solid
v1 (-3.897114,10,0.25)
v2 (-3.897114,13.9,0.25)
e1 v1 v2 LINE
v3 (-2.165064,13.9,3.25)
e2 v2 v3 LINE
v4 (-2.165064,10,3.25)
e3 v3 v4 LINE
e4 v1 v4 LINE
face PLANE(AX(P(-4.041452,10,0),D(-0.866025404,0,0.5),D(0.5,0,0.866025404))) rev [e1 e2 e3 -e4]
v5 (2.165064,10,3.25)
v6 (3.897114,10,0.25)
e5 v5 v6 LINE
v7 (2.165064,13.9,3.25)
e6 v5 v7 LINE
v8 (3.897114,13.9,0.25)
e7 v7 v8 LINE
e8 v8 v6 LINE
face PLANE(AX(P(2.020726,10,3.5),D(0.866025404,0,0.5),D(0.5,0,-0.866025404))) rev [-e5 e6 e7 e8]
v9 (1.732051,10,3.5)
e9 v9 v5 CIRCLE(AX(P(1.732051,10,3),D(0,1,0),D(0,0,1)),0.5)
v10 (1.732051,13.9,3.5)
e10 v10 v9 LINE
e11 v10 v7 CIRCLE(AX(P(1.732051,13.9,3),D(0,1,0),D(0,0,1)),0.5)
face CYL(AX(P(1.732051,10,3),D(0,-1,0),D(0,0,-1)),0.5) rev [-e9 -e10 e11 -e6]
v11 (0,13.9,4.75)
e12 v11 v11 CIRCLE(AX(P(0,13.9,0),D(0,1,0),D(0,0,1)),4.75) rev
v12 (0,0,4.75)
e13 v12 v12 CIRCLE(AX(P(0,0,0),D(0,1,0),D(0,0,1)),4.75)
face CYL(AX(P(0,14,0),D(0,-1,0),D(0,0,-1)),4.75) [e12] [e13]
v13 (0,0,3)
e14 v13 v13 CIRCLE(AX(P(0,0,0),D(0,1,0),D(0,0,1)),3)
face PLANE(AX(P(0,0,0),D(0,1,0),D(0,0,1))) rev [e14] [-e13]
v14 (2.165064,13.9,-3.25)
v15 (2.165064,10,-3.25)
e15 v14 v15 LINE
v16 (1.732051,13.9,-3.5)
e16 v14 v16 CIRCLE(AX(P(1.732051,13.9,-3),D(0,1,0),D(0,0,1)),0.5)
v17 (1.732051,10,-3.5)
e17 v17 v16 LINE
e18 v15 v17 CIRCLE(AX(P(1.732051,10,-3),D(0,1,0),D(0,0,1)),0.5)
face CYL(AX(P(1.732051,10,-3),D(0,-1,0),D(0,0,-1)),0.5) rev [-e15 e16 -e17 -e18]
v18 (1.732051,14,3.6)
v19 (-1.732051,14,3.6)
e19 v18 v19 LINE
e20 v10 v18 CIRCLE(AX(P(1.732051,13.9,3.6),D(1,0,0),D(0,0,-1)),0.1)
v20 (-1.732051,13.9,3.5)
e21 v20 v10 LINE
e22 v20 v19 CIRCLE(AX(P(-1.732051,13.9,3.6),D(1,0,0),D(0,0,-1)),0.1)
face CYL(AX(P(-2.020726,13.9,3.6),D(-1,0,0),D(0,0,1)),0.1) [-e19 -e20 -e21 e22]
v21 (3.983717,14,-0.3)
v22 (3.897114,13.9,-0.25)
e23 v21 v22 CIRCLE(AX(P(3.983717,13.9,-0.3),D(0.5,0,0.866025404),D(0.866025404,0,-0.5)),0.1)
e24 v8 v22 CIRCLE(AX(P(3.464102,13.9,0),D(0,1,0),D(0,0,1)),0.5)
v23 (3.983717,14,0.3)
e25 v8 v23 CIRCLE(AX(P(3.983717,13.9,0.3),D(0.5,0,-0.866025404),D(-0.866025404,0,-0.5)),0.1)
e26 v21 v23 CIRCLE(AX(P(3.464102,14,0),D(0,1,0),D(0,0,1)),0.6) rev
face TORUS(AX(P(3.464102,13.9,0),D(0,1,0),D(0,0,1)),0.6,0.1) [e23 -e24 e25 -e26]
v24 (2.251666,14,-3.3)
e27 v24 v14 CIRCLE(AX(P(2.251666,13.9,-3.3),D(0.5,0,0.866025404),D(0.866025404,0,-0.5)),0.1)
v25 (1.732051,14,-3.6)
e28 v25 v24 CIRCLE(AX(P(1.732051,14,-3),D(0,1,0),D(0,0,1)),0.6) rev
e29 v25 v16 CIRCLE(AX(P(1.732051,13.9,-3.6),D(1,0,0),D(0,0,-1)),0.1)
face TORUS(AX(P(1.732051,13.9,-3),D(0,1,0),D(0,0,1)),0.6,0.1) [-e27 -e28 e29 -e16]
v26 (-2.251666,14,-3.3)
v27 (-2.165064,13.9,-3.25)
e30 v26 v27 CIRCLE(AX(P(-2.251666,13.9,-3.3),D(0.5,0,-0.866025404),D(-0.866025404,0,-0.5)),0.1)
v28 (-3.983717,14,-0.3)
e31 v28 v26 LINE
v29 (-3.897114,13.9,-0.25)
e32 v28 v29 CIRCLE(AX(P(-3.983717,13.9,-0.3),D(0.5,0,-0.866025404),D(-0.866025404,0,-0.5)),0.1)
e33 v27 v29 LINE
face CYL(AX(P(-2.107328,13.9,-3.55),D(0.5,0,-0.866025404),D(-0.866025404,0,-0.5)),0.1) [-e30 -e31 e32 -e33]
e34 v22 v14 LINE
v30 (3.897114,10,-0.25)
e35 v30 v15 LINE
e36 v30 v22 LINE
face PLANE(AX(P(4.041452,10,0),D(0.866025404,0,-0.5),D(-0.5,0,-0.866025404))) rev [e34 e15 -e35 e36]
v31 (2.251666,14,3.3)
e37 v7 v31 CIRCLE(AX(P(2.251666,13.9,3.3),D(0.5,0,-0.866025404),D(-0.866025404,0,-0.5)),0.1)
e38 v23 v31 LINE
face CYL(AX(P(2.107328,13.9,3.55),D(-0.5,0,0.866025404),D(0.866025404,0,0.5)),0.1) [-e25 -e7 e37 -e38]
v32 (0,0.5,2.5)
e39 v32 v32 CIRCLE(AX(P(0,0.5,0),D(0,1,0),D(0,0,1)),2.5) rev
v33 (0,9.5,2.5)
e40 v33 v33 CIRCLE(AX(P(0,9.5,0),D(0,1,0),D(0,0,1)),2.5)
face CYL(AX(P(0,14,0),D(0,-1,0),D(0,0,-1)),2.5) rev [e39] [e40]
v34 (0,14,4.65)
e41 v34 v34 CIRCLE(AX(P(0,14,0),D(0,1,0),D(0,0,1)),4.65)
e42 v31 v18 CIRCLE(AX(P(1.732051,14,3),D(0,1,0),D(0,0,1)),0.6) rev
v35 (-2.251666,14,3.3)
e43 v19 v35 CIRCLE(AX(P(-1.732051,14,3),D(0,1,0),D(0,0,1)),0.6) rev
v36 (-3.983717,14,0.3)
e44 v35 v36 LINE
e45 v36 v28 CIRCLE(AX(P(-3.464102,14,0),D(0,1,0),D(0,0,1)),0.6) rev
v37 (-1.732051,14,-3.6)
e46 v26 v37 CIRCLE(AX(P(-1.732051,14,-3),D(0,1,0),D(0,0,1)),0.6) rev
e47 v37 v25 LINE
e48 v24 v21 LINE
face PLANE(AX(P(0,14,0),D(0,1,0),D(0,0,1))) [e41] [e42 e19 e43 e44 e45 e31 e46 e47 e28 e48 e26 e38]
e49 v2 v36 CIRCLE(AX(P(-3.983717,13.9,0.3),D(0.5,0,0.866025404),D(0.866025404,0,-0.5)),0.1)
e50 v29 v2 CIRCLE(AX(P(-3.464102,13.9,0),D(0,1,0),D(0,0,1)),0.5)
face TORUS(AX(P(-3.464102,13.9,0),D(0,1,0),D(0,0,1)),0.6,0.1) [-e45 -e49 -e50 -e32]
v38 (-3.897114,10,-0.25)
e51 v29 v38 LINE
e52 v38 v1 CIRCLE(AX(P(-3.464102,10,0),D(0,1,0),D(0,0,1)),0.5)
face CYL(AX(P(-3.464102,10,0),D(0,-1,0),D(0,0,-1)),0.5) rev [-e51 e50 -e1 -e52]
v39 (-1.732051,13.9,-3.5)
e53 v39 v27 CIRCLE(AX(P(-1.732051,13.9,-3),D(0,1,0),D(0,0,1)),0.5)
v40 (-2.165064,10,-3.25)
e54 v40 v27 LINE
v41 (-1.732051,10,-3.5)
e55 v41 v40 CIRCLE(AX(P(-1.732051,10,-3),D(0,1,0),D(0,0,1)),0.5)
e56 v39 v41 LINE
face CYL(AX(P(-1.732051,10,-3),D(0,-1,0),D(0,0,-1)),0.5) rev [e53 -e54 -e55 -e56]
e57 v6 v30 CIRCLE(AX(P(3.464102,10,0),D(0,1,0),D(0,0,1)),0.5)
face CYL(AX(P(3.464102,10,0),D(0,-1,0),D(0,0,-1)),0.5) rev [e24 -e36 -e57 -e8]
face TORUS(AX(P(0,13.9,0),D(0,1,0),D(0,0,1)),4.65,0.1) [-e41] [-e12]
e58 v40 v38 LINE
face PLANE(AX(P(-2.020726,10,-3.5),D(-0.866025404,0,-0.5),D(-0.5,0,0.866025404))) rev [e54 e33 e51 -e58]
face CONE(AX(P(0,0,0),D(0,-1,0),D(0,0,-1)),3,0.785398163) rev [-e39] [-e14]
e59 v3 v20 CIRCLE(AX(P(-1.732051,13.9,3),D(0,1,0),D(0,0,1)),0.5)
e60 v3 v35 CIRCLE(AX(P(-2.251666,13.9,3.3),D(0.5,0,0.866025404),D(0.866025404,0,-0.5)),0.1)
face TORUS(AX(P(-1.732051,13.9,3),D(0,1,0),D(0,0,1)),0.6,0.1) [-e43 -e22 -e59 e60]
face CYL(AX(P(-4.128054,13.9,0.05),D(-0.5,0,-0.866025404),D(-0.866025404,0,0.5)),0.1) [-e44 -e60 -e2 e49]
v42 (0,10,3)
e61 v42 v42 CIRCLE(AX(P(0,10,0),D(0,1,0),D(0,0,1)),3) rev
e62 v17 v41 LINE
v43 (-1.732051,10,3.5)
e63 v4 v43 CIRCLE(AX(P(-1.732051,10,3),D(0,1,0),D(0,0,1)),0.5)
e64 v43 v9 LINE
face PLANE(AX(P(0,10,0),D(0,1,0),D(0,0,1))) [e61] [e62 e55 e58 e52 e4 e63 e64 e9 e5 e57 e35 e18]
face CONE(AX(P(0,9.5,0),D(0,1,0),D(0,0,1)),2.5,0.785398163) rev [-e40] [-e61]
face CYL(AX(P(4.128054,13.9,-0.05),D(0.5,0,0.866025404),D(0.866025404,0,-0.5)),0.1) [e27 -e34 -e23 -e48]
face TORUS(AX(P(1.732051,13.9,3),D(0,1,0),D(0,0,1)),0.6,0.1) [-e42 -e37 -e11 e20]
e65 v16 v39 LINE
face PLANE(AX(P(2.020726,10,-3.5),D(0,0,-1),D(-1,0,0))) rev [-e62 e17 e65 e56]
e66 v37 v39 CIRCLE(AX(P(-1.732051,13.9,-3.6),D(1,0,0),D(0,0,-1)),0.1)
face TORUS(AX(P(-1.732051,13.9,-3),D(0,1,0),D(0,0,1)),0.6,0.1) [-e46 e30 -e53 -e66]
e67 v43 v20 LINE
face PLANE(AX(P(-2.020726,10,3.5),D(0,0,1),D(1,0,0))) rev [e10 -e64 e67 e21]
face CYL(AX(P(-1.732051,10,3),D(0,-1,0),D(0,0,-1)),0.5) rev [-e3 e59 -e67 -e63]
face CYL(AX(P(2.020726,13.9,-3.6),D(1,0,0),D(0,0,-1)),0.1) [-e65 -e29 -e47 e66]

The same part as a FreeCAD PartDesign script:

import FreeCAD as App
import Part
import Sketcher

V = App.Vector
Q = App.Units.Quantity


def edges_at(feature, points):
    """Names of the edges that pass closest to the given points."""
    edges = feature.Shape.Edges
    near = lambda p: min(range(len(edges)), key=lambda i: edges[i].distToShape(Part.Vertex(*p))[0])
    return sorted({f"Edge{near(p) + 1}" for p in points})


def add_polygon(sketch, points):
    """Adds a closed chain of lines whose ends are joined by coincident constraints."""
    first, n = sketch.GeometryCount, len(points)
    for a, b in zip(points, points[1:] + points[:1]):
        sketch.addGeometry(Part.LineSegment(App.Vector(*a, 0), App.Vector(*b, 0)), False)
    for i in range(n):
        sketch.addConstraint(Sketcher.Constraint("Coincident", first + i, 2, first + (i + 1) % n, 1))

doc = App.newDocument("Part")
body = doc.addObject("PartDesign::Body", "Body")

# Sketch on XZ plane
sketch1 = body.newObject("Sketcher::SketchObject", "Sketch")
sketch1.AttachmentSupport = (doc.getObject("XZ_Plane"), [""])
sketch1.MapMode = "FlatFace"
sketch1.addGeometry([
    Part.Circle(V(0, 0, 0), V(0, 0, 1), 4.8),
    Part.Circle(V(0, 0, 0), V(0, 0, 1), 2.5),
], False)
sketch1.addConstraint([
    Sketcher.Constraint("Coincident", 0, 3, -1, 1),
    Sketcher.Constraint("Coincident", 1, 3, -1, 1),
    Sketcher.Constraint("Diameter", 1, 5.0),
    Sketcher.Constraint("Diameter", 0, 9.5),
])
pad1 = body.newObject("PartDesign::Pad", "Pad")
pad1.Profile = sketch1
pad1.Length = 14
pad1.Reversed = True

# Sketch on XZ plane
sketch2 = body.newObject("Sketcher::SketchObject", "Sketch001")
sketch2.AttachmentSupport = (doc.getObject("XZ_Plane"), [""])
sketch2.MapMode = "FlatFace"
sketch2.AttachmentOffset = App.Placement(V(0, 0, -14), App.Rotation())
add_polygon(sketch2, [(4, 0), (2, -3.5), (-2, -3.5), (-4, 0), (-2, 3.5), (2, 3.5)])  # lines 0-5
sketch2.addConstraint([
    Sketcher.Constraint("Horizontal", 1),
    Sketcher.Constraint("Horizontal", 4),
    Sketcher.Constraint("Symmetric", 0, 2, 3, 2, -1, 1),
    Sketcher.Constraint("Symmetric", 2, 2, 5, 2, -1, 1),
    Sketcher.Constraint("PointOnObject", 2, 2, -1),
    Sketcher.Constraint("Parallel", 2, 5),
    Sketcher.Constraint("Vertical", 1, 2, 3, 2),
    Sketcher.Constraint("Angle", 0, Q("-120 deg")),
    Sketcher.Constraint("DistanceY", 1, 2, 3, 2, 7.0),
    Sketcher.Constraint("DistanceX", 1, 2, 1, 1, 4.041452),
])
pocket1 = body.newObject("PartDesign::Pocket", "Pocket")
pocket1.Profile = sketch2
pocket1.Length = 4
pocket1.Reversed = True
doc.recompute()

fillet = body.newObject("PartDesign::Fillet", "Fillet")
fillet.Base = (pocket1, edges_at(pocket1, [
    (4.041, 12, 0),
    (2.021, 12, 3.5),
    (-2.021, 12, 3.5),
    (-4.041, 12, 0),
    (-2.021, 12, -3.5),
    (2.021, 12, -3.5),
]))
fillet.Radius = 0.5
doc.recompute()

chamfer = body.newObject("PartDesign::Chamfer", "Chamfer")
chamfer.Base = (fillet, edges_at(fillet, [(0, 10, -2.5), (0, 0, -2.5)]))
chamfer.Size = 0.5
doc.recompute()

fillet2 = body.newObject("PartDesign::Fillet", "Fillet001")
fillet2.Base = (chamfer, edges_at(chamfer, [
    (3.031, 14, 1.75),
    (0, 14, 3.5),
    (-3.031, 14, 1.75),
    (0, 14, -4.75),
    (-3.031, 14, -1.75),
    (3.031, 14, -1.75),
    (0, 14, -3.5),
    (1.982, 14, 3.433),
    (-1.982, 14, 3.433),
    (-3.964, 14, 0),
    (3.964, 14, 0),
    (1.982, 14, -3.433),
    (-1.982, 14, -3.433),
]))
fillet2.Radius = 0.1

doc.recompute()
